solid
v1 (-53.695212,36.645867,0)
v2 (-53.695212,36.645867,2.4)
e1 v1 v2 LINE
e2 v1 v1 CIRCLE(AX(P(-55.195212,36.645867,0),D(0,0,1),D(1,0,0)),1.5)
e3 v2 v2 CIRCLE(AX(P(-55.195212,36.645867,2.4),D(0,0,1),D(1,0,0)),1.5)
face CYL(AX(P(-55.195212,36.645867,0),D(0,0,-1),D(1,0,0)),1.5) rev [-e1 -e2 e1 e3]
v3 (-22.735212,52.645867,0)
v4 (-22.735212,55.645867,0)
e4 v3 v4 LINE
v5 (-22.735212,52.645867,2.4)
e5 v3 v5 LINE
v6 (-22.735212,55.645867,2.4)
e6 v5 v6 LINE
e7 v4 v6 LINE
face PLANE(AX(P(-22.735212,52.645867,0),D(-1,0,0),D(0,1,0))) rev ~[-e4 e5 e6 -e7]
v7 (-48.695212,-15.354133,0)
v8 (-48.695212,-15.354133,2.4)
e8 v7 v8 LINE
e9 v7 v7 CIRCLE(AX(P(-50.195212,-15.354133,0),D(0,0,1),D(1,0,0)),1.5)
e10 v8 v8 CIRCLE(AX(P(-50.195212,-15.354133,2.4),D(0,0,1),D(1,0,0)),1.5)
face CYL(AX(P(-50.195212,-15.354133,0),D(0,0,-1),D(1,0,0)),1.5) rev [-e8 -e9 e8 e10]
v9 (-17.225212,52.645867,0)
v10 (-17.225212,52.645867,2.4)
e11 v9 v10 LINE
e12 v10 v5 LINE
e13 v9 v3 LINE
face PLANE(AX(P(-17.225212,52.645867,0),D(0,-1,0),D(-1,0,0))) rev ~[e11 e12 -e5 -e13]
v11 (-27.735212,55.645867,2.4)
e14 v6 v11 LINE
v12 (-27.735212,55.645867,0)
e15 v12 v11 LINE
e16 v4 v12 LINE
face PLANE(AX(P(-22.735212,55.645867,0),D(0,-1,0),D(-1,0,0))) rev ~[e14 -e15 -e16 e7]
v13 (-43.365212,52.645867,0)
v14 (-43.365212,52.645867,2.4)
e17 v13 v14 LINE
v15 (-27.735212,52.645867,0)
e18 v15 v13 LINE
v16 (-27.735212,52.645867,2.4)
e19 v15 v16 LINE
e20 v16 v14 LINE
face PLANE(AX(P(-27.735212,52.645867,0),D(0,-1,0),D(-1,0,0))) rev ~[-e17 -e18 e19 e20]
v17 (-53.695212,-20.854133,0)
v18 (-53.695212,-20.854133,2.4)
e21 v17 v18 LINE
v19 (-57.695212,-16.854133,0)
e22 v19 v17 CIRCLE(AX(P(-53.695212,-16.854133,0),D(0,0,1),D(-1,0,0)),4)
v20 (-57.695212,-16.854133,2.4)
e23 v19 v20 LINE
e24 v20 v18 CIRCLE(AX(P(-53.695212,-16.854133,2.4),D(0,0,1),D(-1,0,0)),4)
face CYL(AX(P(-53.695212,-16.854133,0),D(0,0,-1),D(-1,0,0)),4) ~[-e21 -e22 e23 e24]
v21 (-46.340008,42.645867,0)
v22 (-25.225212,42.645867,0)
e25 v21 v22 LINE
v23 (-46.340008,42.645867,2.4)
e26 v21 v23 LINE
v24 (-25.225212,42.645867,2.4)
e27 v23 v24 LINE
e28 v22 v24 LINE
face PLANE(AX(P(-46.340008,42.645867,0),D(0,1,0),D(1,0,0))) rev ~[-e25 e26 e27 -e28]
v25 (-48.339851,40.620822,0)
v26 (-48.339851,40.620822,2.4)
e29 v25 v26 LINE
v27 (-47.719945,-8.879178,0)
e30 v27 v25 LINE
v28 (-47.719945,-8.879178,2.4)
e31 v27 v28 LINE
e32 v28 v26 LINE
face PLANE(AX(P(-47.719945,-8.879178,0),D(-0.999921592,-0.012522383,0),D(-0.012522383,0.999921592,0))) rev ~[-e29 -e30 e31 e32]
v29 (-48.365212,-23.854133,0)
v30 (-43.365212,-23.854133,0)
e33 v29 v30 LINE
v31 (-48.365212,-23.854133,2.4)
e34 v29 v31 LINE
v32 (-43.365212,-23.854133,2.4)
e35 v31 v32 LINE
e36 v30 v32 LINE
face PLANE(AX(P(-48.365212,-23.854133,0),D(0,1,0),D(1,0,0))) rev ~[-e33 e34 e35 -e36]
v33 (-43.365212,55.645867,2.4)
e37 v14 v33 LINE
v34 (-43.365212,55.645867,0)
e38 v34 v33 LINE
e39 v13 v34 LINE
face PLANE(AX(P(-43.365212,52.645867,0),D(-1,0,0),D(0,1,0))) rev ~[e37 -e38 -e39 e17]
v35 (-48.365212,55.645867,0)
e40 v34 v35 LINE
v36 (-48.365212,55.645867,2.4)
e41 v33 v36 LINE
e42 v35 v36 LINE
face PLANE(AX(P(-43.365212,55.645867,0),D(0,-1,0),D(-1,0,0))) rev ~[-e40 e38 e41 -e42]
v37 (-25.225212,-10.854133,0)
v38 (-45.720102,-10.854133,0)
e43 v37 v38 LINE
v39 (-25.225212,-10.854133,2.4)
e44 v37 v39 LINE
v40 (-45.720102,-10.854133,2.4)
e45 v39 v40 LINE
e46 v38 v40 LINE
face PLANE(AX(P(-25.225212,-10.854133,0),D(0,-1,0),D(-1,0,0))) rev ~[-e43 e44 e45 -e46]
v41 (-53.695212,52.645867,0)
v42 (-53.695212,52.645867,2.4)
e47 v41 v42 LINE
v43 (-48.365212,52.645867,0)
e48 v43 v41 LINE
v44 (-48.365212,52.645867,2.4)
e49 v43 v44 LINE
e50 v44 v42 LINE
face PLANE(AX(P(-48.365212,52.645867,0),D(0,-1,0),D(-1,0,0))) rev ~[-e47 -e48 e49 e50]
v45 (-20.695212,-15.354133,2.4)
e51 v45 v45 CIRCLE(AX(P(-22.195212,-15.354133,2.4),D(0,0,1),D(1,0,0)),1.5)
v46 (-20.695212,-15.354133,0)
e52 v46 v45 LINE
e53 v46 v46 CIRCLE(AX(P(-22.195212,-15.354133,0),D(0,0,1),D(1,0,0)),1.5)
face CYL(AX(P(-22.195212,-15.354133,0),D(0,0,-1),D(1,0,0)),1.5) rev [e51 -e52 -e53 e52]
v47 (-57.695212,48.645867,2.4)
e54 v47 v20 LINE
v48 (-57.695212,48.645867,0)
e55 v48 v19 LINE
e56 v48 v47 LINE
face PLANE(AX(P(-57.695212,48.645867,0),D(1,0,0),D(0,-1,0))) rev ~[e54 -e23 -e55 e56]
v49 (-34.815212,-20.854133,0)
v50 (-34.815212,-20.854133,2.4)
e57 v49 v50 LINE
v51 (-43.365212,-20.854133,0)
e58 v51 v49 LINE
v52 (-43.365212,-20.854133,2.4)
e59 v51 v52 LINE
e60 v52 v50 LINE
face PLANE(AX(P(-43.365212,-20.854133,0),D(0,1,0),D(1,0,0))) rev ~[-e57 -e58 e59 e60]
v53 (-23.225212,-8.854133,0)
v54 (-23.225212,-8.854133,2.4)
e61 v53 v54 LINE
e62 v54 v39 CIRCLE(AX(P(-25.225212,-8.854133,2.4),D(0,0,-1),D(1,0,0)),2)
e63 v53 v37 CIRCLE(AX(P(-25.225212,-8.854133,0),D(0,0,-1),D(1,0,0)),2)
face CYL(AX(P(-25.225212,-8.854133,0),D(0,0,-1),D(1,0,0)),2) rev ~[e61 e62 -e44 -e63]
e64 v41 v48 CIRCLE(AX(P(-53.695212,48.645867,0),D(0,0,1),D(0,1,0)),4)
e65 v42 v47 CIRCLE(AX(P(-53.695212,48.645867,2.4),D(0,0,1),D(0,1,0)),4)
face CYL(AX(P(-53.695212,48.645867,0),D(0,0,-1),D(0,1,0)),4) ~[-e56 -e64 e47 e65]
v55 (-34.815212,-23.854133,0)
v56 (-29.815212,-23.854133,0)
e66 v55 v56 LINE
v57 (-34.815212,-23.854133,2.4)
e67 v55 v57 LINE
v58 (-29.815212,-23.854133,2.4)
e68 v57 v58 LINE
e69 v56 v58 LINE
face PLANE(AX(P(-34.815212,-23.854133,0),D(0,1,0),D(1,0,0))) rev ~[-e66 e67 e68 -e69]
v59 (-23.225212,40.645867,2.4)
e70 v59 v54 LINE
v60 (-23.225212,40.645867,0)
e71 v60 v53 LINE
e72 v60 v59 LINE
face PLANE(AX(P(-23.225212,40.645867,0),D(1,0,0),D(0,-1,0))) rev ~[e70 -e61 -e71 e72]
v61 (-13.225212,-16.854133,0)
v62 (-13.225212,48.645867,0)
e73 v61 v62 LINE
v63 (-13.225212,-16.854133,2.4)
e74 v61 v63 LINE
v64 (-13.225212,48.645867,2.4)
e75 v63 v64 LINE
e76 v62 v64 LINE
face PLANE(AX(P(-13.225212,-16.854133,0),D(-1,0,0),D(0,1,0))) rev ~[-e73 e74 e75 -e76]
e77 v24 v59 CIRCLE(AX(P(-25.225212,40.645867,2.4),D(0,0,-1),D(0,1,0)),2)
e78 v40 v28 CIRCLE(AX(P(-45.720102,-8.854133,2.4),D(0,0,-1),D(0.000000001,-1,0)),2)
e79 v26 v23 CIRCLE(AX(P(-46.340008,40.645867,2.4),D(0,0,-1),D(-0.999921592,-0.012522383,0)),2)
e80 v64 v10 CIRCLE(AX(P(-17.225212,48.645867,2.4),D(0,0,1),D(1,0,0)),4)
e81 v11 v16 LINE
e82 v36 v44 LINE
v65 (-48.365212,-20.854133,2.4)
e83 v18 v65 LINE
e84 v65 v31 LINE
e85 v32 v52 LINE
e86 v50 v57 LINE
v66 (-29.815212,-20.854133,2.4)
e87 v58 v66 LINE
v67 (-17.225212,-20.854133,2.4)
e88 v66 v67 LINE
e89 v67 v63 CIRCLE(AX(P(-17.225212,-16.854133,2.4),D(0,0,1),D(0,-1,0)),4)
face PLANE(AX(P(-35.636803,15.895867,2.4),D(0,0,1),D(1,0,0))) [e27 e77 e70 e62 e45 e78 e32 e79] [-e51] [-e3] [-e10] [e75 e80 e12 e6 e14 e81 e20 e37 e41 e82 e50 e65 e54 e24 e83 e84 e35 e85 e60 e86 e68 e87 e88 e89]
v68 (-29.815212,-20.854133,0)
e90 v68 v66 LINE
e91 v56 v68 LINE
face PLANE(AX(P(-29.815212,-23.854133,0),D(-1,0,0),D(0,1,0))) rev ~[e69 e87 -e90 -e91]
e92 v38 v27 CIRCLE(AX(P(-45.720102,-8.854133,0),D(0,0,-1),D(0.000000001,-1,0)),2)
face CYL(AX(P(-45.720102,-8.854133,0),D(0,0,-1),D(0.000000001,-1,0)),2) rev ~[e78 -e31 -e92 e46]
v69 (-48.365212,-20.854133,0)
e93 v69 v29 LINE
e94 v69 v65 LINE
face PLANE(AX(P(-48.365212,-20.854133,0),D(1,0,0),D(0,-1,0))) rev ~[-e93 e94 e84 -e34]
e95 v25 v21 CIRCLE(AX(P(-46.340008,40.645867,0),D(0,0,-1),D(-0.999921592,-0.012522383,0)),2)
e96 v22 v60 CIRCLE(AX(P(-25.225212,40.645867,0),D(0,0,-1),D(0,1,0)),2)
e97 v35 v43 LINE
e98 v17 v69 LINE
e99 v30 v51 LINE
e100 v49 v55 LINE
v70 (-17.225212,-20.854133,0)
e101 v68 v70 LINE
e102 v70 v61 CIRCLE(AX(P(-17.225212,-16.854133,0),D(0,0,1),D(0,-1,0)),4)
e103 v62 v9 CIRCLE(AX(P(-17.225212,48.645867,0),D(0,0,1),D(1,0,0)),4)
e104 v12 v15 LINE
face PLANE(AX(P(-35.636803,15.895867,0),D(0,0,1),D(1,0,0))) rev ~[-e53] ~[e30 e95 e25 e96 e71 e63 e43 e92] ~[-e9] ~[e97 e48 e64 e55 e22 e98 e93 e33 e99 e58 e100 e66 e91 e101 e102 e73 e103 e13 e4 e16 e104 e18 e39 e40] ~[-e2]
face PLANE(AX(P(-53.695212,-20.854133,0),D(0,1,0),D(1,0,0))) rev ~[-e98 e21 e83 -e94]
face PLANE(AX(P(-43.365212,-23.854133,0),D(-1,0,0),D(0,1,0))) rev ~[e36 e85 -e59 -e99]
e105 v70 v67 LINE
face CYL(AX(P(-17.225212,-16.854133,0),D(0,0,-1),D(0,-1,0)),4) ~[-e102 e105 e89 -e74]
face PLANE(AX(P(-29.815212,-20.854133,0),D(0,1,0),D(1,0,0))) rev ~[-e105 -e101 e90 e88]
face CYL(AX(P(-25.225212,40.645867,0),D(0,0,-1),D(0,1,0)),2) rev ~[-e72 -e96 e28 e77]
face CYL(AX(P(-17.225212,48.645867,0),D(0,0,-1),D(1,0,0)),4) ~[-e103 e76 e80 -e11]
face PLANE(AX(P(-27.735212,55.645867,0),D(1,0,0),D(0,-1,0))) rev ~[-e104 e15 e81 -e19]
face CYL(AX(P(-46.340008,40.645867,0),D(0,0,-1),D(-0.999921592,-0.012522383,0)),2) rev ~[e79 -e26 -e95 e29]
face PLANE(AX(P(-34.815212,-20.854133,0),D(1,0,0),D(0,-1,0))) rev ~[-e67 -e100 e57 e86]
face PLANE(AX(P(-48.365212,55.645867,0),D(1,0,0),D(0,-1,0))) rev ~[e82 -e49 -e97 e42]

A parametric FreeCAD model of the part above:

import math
import FreeCAD as App
import Part
import Sketcher
Q = App.Units.Quantity

doc = App.newDocument("Part")
body = doc.addObject("PartDesign::Body", "Body")

# Sketch on XY plane
sketch1 = body.newObject("Sketcher::SketchObject", "Sketch")
sketch1.AttachmentSupport = (doc.getObject("XY_Plane"), [""])
sketch1.MapMode = "FlatFace"
sketch1.addGeometry([
    Part.LineSegment(App.Vector(-27.735212, 52.645867, 0), App.Vector(-43.365212, 52.645867, 0)),  # 0
    Part.LineSegment(App.Vector(-43.365212, 52.645867, 0), App.Vector(-43.365212, 55.645867, 0)),  # 1
    Part.LineSegment(App.Vector(-43.365212, 55.645867, 0), App.Vector(-48.365212, 55.645867, 0)),  # 2
    Part.LineSegment(App.Vector(-48.365212, 55.645867, 0), App.Vector(-48.365212, 52.645867, 0)),  # 3
    Part.LineSegment(App.Vector(-48.365212, 52.645867, 0), App.Vector(-53.695212, 52.645867, 0)),  # 4
    Part.ArcOfCircle(Part.Circle(App.Vector(-53.695212, 48.645867, 0), App.Vector(0, 0, 1), 4), math.radians(90), math.radians(180)),  # 5
    Part.LineSegment(App.Vector(-57.695212, 48.645867, 0), App.Vector(-57.695212, -16.854133, 0)),  # 6
    Part.ArcOfCircle(Part.Circle(App.Vector(-53.695212, -16.854133, 0), App.Vector(0, 0, 1), 4), math.radians(-180), math.radians(-90)),  # 7
    Part.LineSegment(App.Vector(-53.695212, -20.854133, 0), App.Vector(-48.365212, -20.854133, 0)),  # 8
    Part.LineSegment(App.Vector(-48.365212, -20.854133, 0), App.Vector(-48.365212, -23.854133, 0)),  # 9
    Part.LineSegment(App.Vector(-48.365212, -23.854133, 0), App.Vector(-43.365212, -23.854133, 0)),  # 10
    Part.LineSegment(App.Vector(-43.365212, -23.854133, 0), App.Vector(-43.365212, -20.854133, 0)),  # 11
    Part.LineSegment(App.Vector(-43.365212, -20.854133, 0), App.Vector(-34.815212, -20.854133, 0)),  # 12
    Part.LineSegment(App.Vector(-34.815212, -20.854133, 0), App.Vector(-34.815212, -23.854133, 0)),  # 13
    Part.LineSegment(App.Vector(-34.815212, -23.854133, 0), App.Vector(-29.815212, -23.854133, 0)),  # 14
    Part.LineSegment(App.Vector(-29.815212, -23.854133, 0), App.Vector(-29.815212, -20.854133, 0)),  # 15
    Part.LineSegment(App.Vector(-29.815212, -20.854133, 0), App.Vector(-17.225212, -20.854133, 0)),  # 16
    Part.ArcOfCircle(Part.Circle(App.Vector(-17.225212, -16.854133, 0), App.Vector(0, 0, 1), 4), math.radians(-90), math.radians(0)),  # 17
    Part.LineSegment(App.Vector(-13.225212, -16.854133, 0), App.Vector(-13.225212, 48.645867, 0)),  # 18
    Part.ArcOfCircle(Part.Circle(App.Vector(-17.225212, 48.645867, 0), App.Vector(0, 0, 1), 4), math.radians(0), math.radians(90)),  # 19
    Part.LineSegment(App.Vector(-17.225212, 52.645867, 0), App.Vector(-22.735212, 52.645867, 0)),  # 20
    Part.LineSegment(App.Vector(-22.735212, 52.645867, 0), App.Vector(-22.735212, 55.645867, 0)),  # 21
    Part.LineSegment(App.Vector(-22.735212, 55.645867, 0), App.Vector(-27.735212, 55.645867, 0)),  # 22
    Part.LineSegment(App.Vector(-27.735212, 55.645867, 0), App.Vector(-27.735212, 52.645867, 0)),  # 23
    Part.Circle(App.Vector(-50.195212, -15.354133, 0), App.Vector(0, 0, 1), 1.5),  # 24
    Part.Circle(App.Vector(-22.195212, -15.354133, 0), App.Vector(0, 0, 1), 1.5),  # 25
    Part.Circle(App.Vector(-55.195212, 36.645867, 0), App.Vector(0, 0, 1), 1.5),  # 26
    Part.LineSegment(App.Vector(-46.340008, 42.645867, 0), App.Vector(-25.225212, 42.645867, 0)),  # 27
    Part.ArcOfCircle(Part.Circle(App.Vector(-25.225212, 40.645867, 0), App.Vector(0, 0, 1), 2), math.radians(0), math.radians(90)),  # 28
    Part.LineSegment(App.Vector(-23.225212, 40.645867, 0), App.Vector(-23.225212, -8.854133, 0)),  # 29
    Part.ArcOfCircle(Part.Circle(App.Vector(-25.225212, -8.854133, 0), App.Vector(0, 0, 1), 2), math.radians(-90), math.radians(0)),  # 30
    Part.LineSegment(App.Vector(-25.225212, -10.854133, 0), App.Vector(-45.720102, -10.854133, 0)),  # 31
    Part.ArcOfCircle(Part.Circle(App.Vector(-45.720102, -8.854133, 0), App.Vector(0, 0, 1), 2), math.radians(-179.282502), math.radians(-90)),  # 32
    Part.LineSegment(App.Vector(-47.719945, -8.879178, 0), App.Vector(-48.339851, 40.620822, 0)),  # 33
    Part.ArcOfCircle(Part.Circle(App.Vector(-46.340008, 40.645867, 0), App.Vector(0, 0, 1), 2), math.radians(90), math.radians(180.717498)),  # 34
], False)
sketch1.addConstraint([
    Sketcher.Constraint("Coincident", 0, 2, 1, 1),
    Sketcher.Constraint("Coincident", 1, 2, 2, 1),
    Sketcher.Constraint("Coincident", 2, 2, 3, 1),
    Sketcher.Constraint("Coincident", 3, 2, 4, 1),
    Sketcher.Constraint("Coincident", 4, 2, 5, 1),
    Sketcher.Constraint("Coincident", 5, 2, 6, 1),
    Sketcher.Constraint("Coincident", 6, 2, 7, 1),
    Sketcher.Constraint("Coincident", 7, 2, 8, 1),
    Sketcher.Constraint("Coincident", 8, 2, 9, 1),
    Sketcher.Constraint("Coincident", 9, 2, 10, 1),
    Sketcher.Constraint("Coincident", 10, 2, 11, 1),
    Sketcher.Constraint("Coincident", 11, 2, 12, 1),
    Sketcher.Constraint("Coincident", 12, 2, 13, 1),
    Sketcher.Constraint("Coincident", 13, 2, 14, 1),
    Sketcher.Constraint("Coincident", 14, 2, 15, 1),
    Sketcher.Constraint("Coincident", 15, 2, 16, 1),
    Sketcher.Constraint("Coincident", 16, 2, 17, 1),
    Sketcher.Constraint("Coincident", 17, 2, 18, 1),
    Sketcher.Constraint("Coincident", 18, 2, 19, 1),
    Sketcher.Constraint("Coincident", 19, 2, 20, 1),
    Sketcher.Constraint("Coincident", 20, 2, 21, 1),
    Sketcher.Constraint("Coincident", 21, 2, 22, 1),
    Sketcher.Constraint("Coincident", 22, 2, 23, 1),
    Sketcher.Constraint("Coincident", 23, 2, 0, 1),
    Sketcher.Constraint("Coincident", 27, 2, 28, 2),
    Sketcher.Constraint("Coincident", 28, 1, 29, 1),
    Sketcher.Constraint("Coincident", 29, 2, 30, 2),
    Sketcher.Constraint("Coincident", 30, 1, 31, 1),
    Sketcher.Constraint("Coincident", 31, 2, 32, 2),
    Sketcher.Constraint("Coincident", 32, 1, 33, 1),
    Sketcher.Constraint("Coincident", 33, 2, 34, 2),
    Sketcher.Constraint("Coincident", 34, 1, 27, 1),
    Sketcher.Constraint("Horizontal", 0),
    Sketcher.Constraint("Vertical", 1),
    Sketcher.Constraint("Horizontal", 2),
    Sketcher.Constraint("Vertical", 3),
    Sketcher.Constraint("Horizontal", 4),
    Sketcher.Constraint("Vertical", 6),
    Sketcher.Constraint("Horizontal", 8),
    Sketcher.Constraint("Vertical", 9),
    Sketcher.Constraint("Horizontal", 10),
    Sketcher.Constraint("Vertical", 11),
    Sketcher.Constraint("Horizontal", 12),
    Sketcher.Constraint("Vertical", 13),
    Sketcher.Constraint("Horizontal", 14),
    Sketcher.Constraint("Vertical", 15),
    Sketcher.Constraint("Horizontal", 16),
    Sketcher.Constraint("Vertical", 18),
    Sketcher.Constraint("Horizontal", 20),
    Sketcher.Constraint("Vertical", 21),
    Sketcher.Constraint("Horizontal", 22),
    Sketcher.Constraint("Vertical", 23),
    Sketcher.Constraint("Horizontal", 27),
    Sketcher.Constraint("Vertical", 29),
    Sketcher.Constraint("Horizontal", 31),
    Sketcher.Constraint("Diameter", 24, Q("3 mm")),
    Sketcher.Constraint("Diameter", 25, Q("3 mm")),
    Sketcher.Constraint("Diameter", 26, Q("3 mm")),
    Sketcher.Constraint("Radius", 5, Q("4 mm")),
    Sketcher.Constraint("Radius", 7, Q("4 mm")),
    Sketcher.Constraint("Radius", 17, Q("4 mm")),
    Sketcher.Constraint("Radius", 19, Q("4 mm")),
    Sketcher.Constraint("Radius", 28, Q("2 mm")),
    Sketcher.Constraint("Radius", 30, Q("2 mm")),
    Sketcher.Constraint("Radius", 32, Q("2 mm")),
    Sketcher.Constraint("Radius", 34, Q("2 mm")),
    Sketcher.Constraint("DistanceX", 2, 2, 2, 1, Q("5 mm")),
    Sketcher.Constraint("DistanceX", 10, 1, 10, 2, Q("5 mm")),
    Sketcher.Constraint("DistanceX", 14, 1, 14, 2, Q("5 mm")),
    Sketcher.Constraint("DistanceX", 22, 2, 22, 1, Q("5 mm")),
    Sketcher.Constraint("DistanceY", 1, 1, 1, 2, Q("3 mm")),
    Sketcher.Constraint("DistanceY", 3, 2, 3, 1, Q("3 mm")),
    Sketcher.Constraint("DistanceY", 9, 2, 9, 1, Q("3 mm")),
    Sketcher.Constraint("DistanceY", 11, 1, 11, 2, Q("3 mm")),
    Sketcher.Constraint("DistanceY", 13, 2, 13, 1, Q("3 mm")),
    Sketcher.Constraint("DistanceY", 15, 1, 15, 2, Q("3 mm")),
    Sketcher.Constraint("DistanceY", 21, 1, 21, 2, Q("3 mm")),
    Sketcher.Constraint("DistanceY", 23, 2, 23, 1, Q("3 mm")),
    Sketcher.Constraint("DistanceY", 6, 2, 6, 1, Q("65.5 mm")),
    Sketcher.Constraint("DistanceY", 18, 1, 18, 2, Q("65.5 mm")),
    Sketcher.Constraint("DistanceY", 29, 2, 29, 1, Q("49.5 mm")),
    Sketcher.Constraint("DistanceY", 24, 3, 5, 3, Q("64 mm")),
    Sketcher.Constraint("DistanceX", 24, 3, 25, 3, Q("28 mm")),
    Sketcher.Constraint("DistanceY", 25, 3, 19, 3, Q("64 mm")),
    Sketcher.Constraint("DistanceY", 26, 3, 5, 3, Q("12 mm")),
    Sketcher.Constraint("DistanceX", 26, 3, 24, 3, Q("5 mm")),
    Sketcher.Constraint("DistanceX", 28, 3, 19, 3, Q("8 mm")),
    Sketcher.Constraint("DistanceY", 28, 3, 19, 3, Q("8 mm")),
    Sketcher.Constraint("DistanceY", 17, 3, 30, 3, Q("8 mm")),
    Sketcher.Constraint("DistanceX", 5, 2, 4, 2, Q("4 mm")),
    Sketcher.Constraint("DistanceY", 5, 2, 4, 2, Q("4 mm")),
    Sketcher.Constraint("DistanceY", 6, 2, 32, 3, Q("8 mm")),
    Sketcher.Constraint("DistanceX", 6, 2, 7, 2, Q("4 mm")),
    Sketcher.Constraint("DistanceX", 30, 3, 16, 2, Q("8 mm")),
    Sketcher.Constraint("DistanceY", 16, 2, 17, 2, Q("4 mm")),
    Sketcher.Constraint("DistanceX", 19, 2, 18, 2, Q("4 mm")),
    Sketcher.Constraint("DistanceX", 27, 2, 19, 3, Q("8 mm")),
    Sketcher.Constraint("DistanceY", 28, 1, 27, 2, Q("2 mm")),
    Sketcher.Constraint("DistanceX", 30, 1, 29, 2, Q("2 mm")),
    Sketcher.Constraint("DistanceX", 0, 2, 0, 1, Q("15.63 mm")),
    Sketcher.Constraint("DistanceX", 4, 2, 4, 1, Q("5.33 mm")),
    Sketcher.Constraint("DistanceX", 8, 1, 8, 2, Q("5.33 mm")),
    Sketcher.Constraint("DistanceX", 12, 1, 12, 2, Q("8.55 mm")),
    Sketcher.Constraint("DistanceX", 16, 1, 16, 2, Q("12.59 mm")),
    Sketcher.Constraint("DistanceX", 7, 3, 24, 3, Q("3.5 mm")),
    Sketcher.Constraint("DistanceX", 31, 2, 31, 1, Q("20.49489 mm")),
    Sketcher.Constraint("DistanceX", 32, 3, -1, 1, Q("45.720102 mm")),
    Sketcher.Constraint("DistanceX", 31, 2, -1, 1, Q("45.720102 mm")),
    Sketcher.Constraint("Distance", 33, Q("49.503882 mm")),
    Sketcher.Constraint("DistanceX", 27, 1, 27, 2, Q("21.114796 mm")),
    Sketcher.Constraint("DistanceX", 34, 3, -1, 1, Q("46.340008 mm")),
    Sketcher.Constraint("DistanceY", 32, 1, -1, 1, Q("8.879178 mm")),
    Sketcher.Constraint("DistanceY", -1, 1, 5, 3, Q("48.645867 mm")),
])
pad1 = body.newObject("PartDesign::Pad", "Pad")
pad1.Profile = sketch1
pad1.Length = 2.4

doc.recompute()
